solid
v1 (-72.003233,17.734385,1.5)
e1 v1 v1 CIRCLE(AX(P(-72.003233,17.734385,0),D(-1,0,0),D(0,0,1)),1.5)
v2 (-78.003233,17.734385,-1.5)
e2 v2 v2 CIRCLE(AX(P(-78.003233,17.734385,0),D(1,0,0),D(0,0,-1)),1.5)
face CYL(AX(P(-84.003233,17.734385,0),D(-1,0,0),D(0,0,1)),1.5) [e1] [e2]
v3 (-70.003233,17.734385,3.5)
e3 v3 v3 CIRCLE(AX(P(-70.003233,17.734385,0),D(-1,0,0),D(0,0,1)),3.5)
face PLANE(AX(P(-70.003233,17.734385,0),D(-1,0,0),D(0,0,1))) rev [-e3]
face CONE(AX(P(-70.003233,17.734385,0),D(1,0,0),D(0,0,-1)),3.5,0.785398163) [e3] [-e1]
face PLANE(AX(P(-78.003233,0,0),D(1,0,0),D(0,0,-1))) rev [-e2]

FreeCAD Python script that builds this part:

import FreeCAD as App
import Part
import Sketcher
Q = App.Units.Quantity


def add_polygon(sketch, points):
    """Adds a closed chain of lines whose ends are joined by coincident constraints."""
    first, n = sketch.GeometryCount, len(points)
    for a, b in zip(points, points[1:] + points[:1]):
        sketch.addGeometry(Part.LineSegment(App.Vector(*a, 0), App.Vector(*b, 0)), False)
    for i in range(n):
        sketch.addConstraint(Sketcher.Constraint("Coincident", first + i, 2, first + (i + 1) % n, 1))

doc = App.newDocument("Part")
body = doc.addObject("PartDesign::Body", "Body")

# Sketch on XY plane
sketch1 = body.newObject("Sketcher::SketchObject", "Sketch")
sketch1.AttachmentSupport = (doc.getObject("XY_Plane"), [""])
sketch1.MapMode = "FlatFace"
add_polygon(sketch1, [(-72, 19.2), (-84, 19.2), (-84, 17.7), (-70, 17.7), (-70, 21.2)])  # lines 0-4
sketch1.addGeometry(Part.LineSegment(App.Vector(-84, 17.7, 0), App.Vector(-70, 17.7, 0)), True)  # axis
sketch1.addConstraint([
    Sketcher.Constraint("Horizontal", 0),
    Sketcher.Constraint("Vertical", 1),
    Sketcher.Constraint("Horizontal", 2),
    Sketcher.Constraint("Vertical", 3),
    Sketcher.Constraint("Horizontal", 5),
    Sketcher.Constraint("Coincident", 5, 1, 1, 2),
    Sketcher.Constraint("Vertical", 3, 2, 5, 2),
    Sketcher.Constraint("DistanceX", 0, 2, 0, 1, 12.0),
    Sketcher.Constraint("DistanceX", 2, 1, 2, 2, 14.0),
    Sketcher.Constraint("Angle", 4, Q("-135 deg")),
    Sketcher.Constraint("DistanceY", 1, 2, 1, 1, 1.5),
    Sketcher.Constraint("DistanceX", 0, 2, -1, 1, 84.003233),
    Sketcher.Constraint("DistanceY", -1, 1, 0, 2, 19.234385),
])
revolution = body.newObject("PartDesign::Revolution", "Revolution")
revolution.Profile = sketch1
revolution.ReferenceAxis = (sketch1, ["Axis0"])
revolution.Angle = 360

# Sketch on YZ plane
sketch2 = body.newObject("Sketcher::SketchObject", "Sketch001")
sketch2.AttachmentSupport = (doc.getObject("YZ_Plane"), [""])
sketch2.MapMode = "FlatFace"
sketch2.AttachmentOffset = App.Placement(App.Vector(0, 0, -84.003233), App.Rotation())
add_polygon(sketch2, [(19.648786, -1.961093), (15.940052, -2.08116), (15.80146, 2.199764), (19.742171, 2.094501)])  # lines 0-3
sketch2.addConstraint([
    Sketcher.Constraint("DistanceY", -1, 1, 2, 2, 2.094501),
    Sketcher.Constraint("Distance", 3, 4.056669),
    Sketcher.Constraint("DistanceX", -1, 1, 0, 2, 15.940052),
    Sketcher.Constraint("DistanceY", 0, 2, -1, 1, 2.08116),
    Sketcher.Constraint("DistanceX", -1, 1, 1, 2, 15.80146),
    Sketcher.Constraint("DistanceX", -1, 1, 2, 2, 19.742171),
    Sketcher.Constraint("Distance", 0, 3.710677),
    Sketcher.Constraint("Distance", 1, 4.283167),
])
pocket1 = body.newObject("PartDesign::Pocket", "Pocket")
pocket1.Profile = sketch2
pocket1.Length = 6
pocket1.Reversed = True

doc.recompute()
